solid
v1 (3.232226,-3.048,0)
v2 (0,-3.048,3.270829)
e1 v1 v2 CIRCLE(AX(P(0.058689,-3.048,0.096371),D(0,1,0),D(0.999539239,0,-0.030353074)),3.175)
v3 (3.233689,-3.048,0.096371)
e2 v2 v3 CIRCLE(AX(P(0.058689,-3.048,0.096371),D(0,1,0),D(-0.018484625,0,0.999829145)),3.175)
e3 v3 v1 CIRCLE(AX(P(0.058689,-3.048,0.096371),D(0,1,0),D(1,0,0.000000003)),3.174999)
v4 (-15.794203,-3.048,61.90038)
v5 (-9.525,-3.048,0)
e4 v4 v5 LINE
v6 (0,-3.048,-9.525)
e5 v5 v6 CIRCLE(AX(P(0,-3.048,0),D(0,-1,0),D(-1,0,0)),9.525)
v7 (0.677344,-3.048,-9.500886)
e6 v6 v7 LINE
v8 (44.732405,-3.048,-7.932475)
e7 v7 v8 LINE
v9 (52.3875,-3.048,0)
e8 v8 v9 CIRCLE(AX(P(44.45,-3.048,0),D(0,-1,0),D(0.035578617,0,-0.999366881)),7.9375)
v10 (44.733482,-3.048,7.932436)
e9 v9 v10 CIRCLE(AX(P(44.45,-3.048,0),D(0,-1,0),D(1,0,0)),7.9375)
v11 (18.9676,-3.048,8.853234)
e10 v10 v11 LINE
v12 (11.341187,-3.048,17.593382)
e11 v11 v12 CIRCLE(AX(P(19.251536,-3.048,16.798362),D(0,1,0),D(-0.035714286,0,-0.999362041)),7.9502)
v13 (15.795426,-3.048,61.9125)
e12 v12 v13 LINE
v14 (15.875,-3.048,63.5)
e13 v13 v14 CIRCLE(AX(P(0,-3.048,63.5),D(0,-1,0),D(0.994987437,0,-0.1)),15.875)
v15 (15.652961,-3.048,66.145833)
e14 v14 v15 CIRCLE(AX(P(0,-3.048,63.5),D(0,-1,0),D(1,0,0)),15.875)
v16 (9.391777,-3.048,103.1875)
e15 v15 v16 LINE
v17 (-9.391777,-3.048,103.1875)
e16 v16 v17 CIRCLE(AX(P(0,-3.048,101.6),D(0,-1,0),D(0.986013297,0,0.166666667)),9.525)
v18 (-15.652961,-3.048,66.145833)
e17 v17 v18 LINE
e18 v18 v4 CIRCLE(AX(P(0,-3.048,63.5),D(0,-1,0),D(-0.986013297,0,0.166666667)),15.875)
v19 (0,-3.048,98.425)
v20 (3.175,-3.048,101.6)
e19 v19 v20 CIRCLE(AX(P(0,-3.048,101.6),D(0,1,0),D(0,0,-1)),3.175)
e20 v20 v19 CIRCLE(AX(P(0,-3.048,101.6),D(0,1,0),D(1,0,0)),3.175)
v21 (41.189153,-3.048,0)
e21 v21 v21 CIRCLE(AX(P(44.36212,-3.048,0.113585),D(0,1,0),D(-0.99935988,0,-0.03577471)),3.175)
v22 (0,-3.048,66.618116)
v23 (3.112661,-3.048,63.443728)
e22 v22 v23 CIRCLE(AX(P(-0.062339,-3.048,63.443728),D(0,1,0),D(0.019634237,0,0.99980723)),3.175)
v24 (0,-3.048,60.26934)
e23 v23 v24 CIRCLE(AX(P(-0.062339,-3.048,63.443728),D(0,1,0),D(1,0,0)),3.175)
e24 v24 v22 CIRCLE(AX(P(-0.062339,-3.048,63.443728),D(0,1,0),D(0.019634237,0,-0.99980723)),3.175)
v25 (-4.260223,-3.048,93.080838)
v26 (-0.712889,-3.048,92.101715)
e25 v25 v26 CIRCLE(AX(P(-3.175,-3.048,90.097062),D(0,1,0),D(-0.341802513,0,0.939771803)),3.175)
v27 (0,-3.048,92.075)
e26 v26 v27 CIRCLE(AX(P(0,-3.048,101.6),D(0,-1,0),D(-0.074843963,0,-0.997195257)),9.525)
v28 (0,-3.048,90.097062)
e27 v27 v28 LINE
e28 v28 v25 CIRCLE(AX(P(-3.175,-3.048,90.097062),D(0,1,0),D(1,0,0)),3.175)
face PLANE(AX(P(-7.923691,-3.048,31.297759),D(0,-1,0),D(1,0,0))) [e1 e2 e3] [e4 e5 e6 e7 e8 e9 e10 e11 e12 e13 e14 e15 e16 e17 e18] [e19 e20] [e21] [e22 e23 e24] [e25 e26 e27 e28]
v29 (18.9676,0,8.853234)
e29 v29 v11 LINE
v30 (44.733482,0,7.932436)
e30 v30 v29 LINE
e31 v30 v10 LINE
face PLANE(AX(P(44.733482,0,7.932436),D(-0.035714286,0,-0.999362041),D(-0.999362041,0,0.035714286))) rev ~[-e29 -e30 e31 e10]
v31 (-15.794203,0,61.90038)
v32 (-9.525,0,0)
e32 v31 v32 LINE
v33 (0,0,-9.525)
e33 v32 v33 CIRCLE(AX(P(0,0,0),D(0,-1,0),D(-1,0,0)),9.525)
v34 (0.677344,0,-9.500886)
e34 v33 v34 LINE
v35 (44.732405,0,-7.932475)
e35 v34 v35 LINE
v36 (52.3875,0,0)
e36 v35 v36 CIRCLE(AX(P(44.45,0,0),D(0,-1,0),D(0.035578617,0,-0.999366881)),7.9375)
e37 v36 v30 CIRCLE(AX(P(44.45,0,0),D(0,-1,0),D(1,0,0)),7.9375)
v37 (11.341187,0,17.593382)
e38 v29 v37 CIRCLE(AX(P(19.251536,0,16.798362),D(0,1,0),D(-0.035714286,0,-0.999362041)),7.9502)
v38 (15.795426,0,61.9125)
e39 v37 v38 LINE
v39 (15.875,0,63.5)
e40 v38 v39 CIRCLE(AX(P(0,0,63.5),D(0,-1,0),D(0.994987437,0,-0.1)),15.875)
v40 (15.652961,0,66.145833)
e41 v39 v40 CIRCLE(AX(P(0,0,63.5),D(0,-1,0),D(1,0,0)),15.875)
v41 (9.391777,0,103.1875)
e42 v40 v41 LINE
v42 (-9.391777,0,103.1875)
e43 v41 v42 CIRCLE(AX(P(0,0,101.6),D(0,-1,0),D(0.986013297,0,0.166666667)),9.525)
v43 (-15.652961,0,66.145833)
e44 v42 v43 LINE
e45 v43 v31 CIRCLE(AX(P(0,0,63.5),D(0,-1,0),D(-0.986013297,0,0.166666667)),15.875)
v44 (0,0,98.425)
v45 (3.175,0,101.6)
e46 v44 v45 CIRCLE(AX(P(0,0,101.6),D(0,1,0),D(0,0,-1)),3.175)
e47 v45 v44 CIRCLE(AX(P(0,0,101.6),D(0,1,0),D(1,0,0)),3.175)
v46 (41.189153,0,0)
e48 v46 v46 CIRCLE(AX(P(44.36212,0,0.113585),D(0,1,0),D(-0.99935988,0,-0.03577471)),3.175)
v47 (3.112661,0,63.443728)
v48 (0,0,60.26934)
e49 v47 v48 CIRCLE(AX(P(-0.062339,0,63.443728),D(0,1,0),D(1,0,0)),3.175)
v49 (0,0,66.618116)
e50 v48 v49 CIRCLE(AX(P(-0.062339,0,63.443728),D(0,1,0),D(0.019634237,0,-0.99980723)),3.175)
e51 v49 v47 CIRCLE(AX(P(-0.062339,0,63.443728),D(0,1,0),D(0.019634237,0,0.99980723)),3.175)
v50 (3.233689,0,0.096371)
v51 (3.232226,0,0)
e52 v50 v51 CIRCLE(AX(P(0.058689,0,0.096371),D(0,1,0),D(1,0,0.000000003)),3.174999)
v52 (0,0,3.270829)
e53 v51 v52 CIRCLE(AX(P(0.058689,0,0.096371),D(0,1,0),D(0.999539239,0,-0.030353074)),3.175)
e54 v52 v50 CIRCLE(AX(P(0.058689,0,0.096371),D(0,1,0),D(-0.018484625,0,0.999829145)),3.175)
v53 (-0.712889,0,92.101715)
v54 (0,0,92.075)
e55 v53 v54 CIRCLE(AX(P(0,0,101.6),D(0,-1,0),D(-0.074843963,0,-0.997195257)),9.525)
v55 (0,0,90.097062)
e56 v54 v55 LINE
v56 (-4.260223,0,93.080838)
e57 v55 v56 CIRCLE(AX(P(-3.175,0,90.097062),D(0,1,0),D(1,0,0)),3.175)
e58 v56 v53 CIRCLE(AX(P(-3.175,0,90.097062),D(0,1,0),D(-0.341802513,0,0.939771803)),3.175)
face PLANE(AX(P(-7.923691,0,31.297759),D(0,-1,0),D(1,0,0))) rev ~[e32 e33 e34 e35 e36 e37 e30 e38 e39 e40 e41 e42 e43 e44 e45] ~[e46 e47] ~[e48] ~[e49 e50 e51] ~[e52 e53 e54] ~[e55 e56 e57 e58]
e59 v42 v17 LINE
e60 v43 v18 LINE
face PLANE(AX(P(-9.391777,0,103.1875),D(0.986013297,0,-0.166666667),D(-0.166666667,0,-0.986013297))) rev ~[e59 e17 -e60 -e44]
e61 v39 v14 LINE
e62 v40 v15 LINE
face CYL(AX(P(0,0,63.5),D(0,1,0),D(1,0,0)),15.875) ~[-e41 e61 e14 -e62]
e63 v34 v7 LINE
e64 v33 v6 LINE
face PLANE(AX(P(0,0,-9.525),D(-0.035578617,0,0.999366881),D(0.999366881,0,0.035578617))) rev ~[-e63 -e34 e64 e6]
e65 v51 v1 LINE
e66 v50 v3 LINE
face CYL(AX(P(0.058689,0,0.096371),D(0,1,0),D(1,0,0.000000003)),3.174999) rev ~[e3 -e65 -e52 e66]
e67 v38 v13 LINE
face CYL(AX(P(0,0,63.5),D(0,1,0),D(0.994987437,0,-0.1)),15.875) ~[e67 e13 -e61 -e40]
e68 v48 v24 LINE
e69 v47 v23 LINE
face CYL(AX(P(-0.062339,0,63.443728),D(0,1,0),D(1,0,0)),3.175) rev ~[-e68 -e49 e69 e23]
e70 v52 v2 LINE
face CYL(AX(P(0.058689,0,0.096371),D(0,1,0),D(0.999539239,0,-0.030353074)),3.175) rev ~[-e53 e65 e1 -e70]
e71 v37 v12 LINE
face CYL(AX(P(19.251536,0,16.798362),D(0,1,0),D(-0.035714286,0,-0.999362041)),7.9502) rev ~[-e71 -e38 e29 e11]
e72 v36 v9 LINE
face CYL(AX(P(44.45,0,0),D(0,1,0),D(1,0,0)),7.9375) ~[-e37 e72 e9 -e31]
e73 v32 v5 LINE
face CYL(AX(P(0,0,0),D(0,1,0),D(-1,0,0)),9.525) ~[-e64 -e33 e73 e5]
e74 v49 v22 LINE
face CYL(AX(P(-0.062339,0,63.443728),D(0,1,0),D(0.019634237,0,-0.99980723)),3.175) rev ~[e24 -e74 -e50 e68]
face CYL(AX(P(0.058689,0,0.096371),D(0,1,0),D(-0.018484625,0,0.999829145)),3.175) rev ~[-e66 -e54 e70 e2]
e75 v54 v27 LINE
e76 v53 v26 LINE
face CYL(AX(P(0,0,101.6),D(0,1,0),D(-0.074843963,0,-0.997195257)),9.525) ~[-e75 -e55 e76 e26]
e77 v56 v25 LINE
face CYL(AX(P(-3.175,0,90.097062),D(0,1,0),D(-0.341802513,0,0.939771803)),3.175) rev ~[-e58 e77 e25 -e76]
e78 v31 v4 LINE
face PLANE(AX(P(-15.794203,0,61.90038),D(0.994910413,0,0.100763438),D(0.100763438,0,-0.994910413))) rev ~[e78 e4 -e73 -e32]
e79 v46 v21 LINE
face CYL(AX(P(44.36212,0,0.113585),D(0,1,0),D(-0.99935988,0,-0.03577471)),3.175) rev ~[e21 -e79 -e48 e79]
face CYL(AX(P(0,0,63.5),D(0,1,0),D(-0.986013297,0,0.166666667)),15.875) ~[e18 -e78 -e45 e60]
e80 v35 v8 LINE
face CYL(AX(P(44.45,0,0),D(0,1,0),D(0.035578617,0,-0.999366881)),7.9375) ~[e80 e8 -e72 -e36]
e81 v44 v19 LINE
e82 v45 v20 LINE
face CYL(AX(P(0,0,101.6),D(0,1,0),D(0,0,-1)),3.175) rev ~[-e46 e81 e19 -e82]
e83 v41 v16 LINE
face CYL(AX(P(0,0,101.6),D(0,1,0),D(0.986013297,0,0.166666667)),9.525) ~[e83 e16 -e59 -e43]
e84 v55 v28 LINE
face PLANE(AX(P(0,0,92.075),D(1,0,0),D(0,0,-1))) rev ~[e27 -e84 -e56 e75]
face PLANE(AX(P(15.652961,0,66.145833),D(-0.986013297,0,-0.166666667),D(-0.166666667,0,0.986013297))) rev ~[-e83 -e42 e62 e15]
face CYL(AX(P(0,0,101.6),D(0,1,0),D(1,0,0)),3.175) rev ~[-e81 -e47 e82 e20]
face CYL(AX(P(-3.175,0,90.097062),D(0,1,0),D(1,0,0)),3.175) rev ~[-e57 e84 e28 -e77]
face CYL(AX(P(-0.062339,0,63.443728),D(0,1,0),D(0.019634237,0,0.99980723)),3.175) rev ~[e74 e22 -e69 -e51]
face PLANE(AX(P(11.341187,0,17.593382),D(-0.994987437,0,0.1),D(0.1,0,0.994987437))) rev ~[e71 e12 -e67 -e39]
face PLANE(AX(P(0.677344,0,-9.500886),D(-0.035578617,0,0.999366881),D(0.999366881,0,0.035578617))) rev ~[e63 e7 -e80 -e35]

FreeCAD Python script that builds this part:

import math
import FreeCAD as App
import Part
import Sketcher

V = App.Vector
Q = App.Units.Quantity

doc = App.newDocument("Part")
params = doc.addObject("Spreadsheet::Sheet", "Params")
for row, (alias, value) in enumerate([
    ("sketch1_diameter", "0.25 in"),
    ("sketch1_radius", "0.375 in"),
    ("sketch1_radius2", "0.3125 in"),
    ("sketch1_radius3", "0.313 in"),
    ("sketch1_radius4", "0.625 in"),
    ("pad1_length", "0.12 in"),
], start=1):
    params.set(f"A{row}", alias)
    params.set(f"B{row}", "=" + value)
    params.setAlias(f"B{row}", alias)

body = doc.addObject("PartDesign::Body", "Body")

sketch1 = body.newObject("Sketcher::SketchObject", "Sketch")
sketch1.AttachmentSupport = (doc.getObject("XZ_Plane"), [""])
sketch1.MapMode = "FlatFace"
sketch1.addGeometry([
    Part.LineSegment(V(-15.794203, 61.90038, 0), V(-9.525, 0, 0)),
    Part.ArcOfCircle(Part.Circle(V(0, 0, 0), V(0, 0, 1), 9.525), math.radians(180), math.radians(270)),
    Part.LineSegment(V(0, -9.525, 0), V(0.677344, -9.500886, 0)),
    Part.LineSegment(V(0.677344, -9.500886, 0), V(44.732405, -7.932475, 0)),
    Part.ArcOfCircle(Part.Circle(V(44.45, 0, 0), V(0, 0, 1), 7.9375), math.radians(-87.961065), math.radians(0)),
    Part.ArcOfCircle(Part.Circle(V(44.45, 0, 0), V(0, 0, 1), 7.9375), math.radians(0), math.radians(87.953287)),
    Part.LineSegment(V(44.733482, 7.932436, 0), V(18.9676, 8.853234, 0)),
    Part.ArcOfCircle(Part.Circle(V(19.251536, 16.798362, 0), V(0, 0, 1), 7.9502), math.radians(174.26083), math.radians(267.953287)),
    Part.LineSegment(V(11.341187, 17.593382, 0), V(15.795426, 61.9125, 0)),
    Part.ArcOfCircle(Part.Circle(V(0, 63.5, 0), V(0, 0, 1), 15.875), math.radians(-5.73917), math.radians(0)),
    Part.ArcOfCircle(Part.Circle(V(0, 63.5, 0), V(0, 0, 1), 15.875), math.radians(0), math.radians(9.594068)),
    Part.LineSegment(V(15.652961, 66.145833, 0), V(9.391777, 103.1875, 0)),
    Part.ArcOfCircle(Part.Circle(V(0, 101.6, 0), V(0, 0, 1), 9.525), math.radians(9.594068), math.radians(170.405932)),
    Part.LineSegment(V(-9.391777, 103.1875, 0), V(-15.652961, 66.145833, 0)),
    Part.ArcOfCircle(Part.Circle(V(0, 63.5, 0), V(0, 0, 1), 15.875), math.radians(170.405932), math.radians(185.783134)),
    Part.ArcOfCircle(Part.Circle(V(-0.062339, 63.443728, 0), V(0, 0, 1), 3.175), math.radians(-88.874969), math.radians(0)),
    Part.ArcOfCircle(Part.Circle(V(-0.062339, 63.443728, 0), V(0, 0, 1), 3.175), math.radians(88.874969), math.radians(271.125031)),
    Part.ArcOfCircle(Part.Circle(V(-0.062339, 63.443728, 0), V(0, 0, 1), 3.175), math.radians(0), math.radians(88.874969)),
    Part.ArcOfCircle(Part.Circle(V(0.058689, 0.096371, 0), V(0, 0, 1), 3.175), math.radians(0), math.radians(91.059151)),
    Part.ArcOfCircle(Part.Circle(V(0.058689, 0.096371, 0), V(0, 0, 1), 3.174999), math.radians(-1.73937), math.radians(0)),
    Part.ArcOfCircle(Part.Circle(V(0.058689, 0.096371, 0), V(0, 0, 1), 3.175), math.radians(91.059151), math.radians(358.26063)),
    Part.Circle(V(44.36212, 0.113585, 0), V(0, 0, 1), 3.175),
    Part.LineSegment(V(0, 92.075, 0), V(0, 90.097062, 0)),
    Part.ArcOfCircle(Part.Circle(V(-3.175, 90.097062, 0), V(0, 0, 1), 3.175), math.radians(109.986731), math.radians(360)),
    Part.ArcOfCircle(Part.Circle(V(-3.175, 90.097062, 0), V(0, 0, 1), 3.175), math.radians(39.152508), math.radians(109.986731)),
    Part.ArcOfCircle(Part.Circle(V(0, 101.6, 0), V(0, 0, 1), 9.525), math.radians(-94.292257), math.radians(-90)),
    Part.ArcOfCircle(Part.Circle(V(0, 101.6, 0), V(0, 0, 1), 3.175), math.radians(0), math.radians(270)),
    Part.ArcOfCircle(Part.Circle(V(0, 101.6, 0), V(0, 0, 1), 3.175), math.radians(-90), math.radians(0)),
], False)
sketch1.addConstraint([
    Sketcher.Constraint("Coincident", 0, 2, 1, 1),
    Sketcher.Constraint("Coincident", 1, 2, 2, 1),
    Sketcher.Constraint("Coincident", 2, 2, 3, 1),
    Sketcher.Constraint("Tangent", 3, 2, 4, 1),
    Sketcher.Constraint("Tangent", 4, 2, 5, 1),
    Sketcher.Constraint("Tangent", 5, 2, 6, 1),
    Sketcher.Constraint("Tangent", 6, 2, 7, 2),
    Sketcher.Constraint("Tangent", 7, 1, 8, 1),
    Sketcher.Constraint("Tangent", 8, 2, 9, 1),
    Sketcher.Constraint("Tangent", 9, 2, 10, 1),
    Sketcher.Constraint("Tangent", 10, 2, 11, 1),
    Sketcher.Constraint("Tangent", 11, 2, 12, 1),
    Sketcher.Constraint("Tangent", 12, 2, 13, 1),
    Sketcher.Constraint("Tangent", 13, 2, 14, 1),
    Sketcher.Constraint("Tangent", 14, 2, 0, 1),
    Sketcher.Constraint("Tangent", 15, 1, 16, 2),
    Sketcher.Constraint("Tangent", 16, 1, 17, 2),
    Sketcher.Constraint("Tangent", 17, 1, 15, 2),
    Sketcher.Constraint("Tangent", 18, 1, 19, 2),
    Sketcher.Constraint("Tangent", 19, 1, 20, 2),
    Sketcher.Constraint("Tangent", 20, 1, 18, 2),
    Sketcher.Constraint("Tangent", 22, 2, 23, 2),
    Sketcher.Constraint("Tangent", 23, 1, 24, 2),
    Sketcher.Constraint("Coincident", 24, 1, 25, 1),
    Sketcher.Constraint("Coincident", 25, 2, 22, 1),
    Sketcher.Constraint("Tangent", 26, 1, 27, 2),
    Sketcher.Constraint("Coincident", 27, 1, 26, 2),
    Sketcher.Constraint("Vertical", 22),
    Sketcher.Constraint("Coincident", 1, 3, -1, 1),
    Sketcher.Constraint("Coincident", 14, 3, 9, 3),
    Sketcher.Constraint("Coincident", 25, 3, 12, 3),
    Sketcher.Constraint("Coincident", 26, 3, 12, 3),
    Sketcher.Constraint("Equal", 4, 5),
    Sketcher.Constraint("Equal", 9, 10),
    Sketcher.Constraint("Equal", 1, 12),
    Sketcher.Constraint("Equal", 10, 14),
    Sketcher.Constraint("Equal", 17, 18),
    Sketcher.Constraint("Equal", 20, 21),
    Sketcher.Constraint("Equal", 21, 23),
    Sketcher.Constraint("Equal", 23, 24),
    Sketcher.Constraint("Equal", 12, 25),
    Sketcher.Constraint("Equal", 24, 26),
    Sketcher.Constraint("Symmetric", 11, 2, 12, 2, -2),
    Sketcher.Constraint("PointOnObject", 4, 3, -1),
    Sketcher.Constraint("PointOnObject", 0, 2, -1),
    Sketcher.Constraint("PointOnObject", 1, 2, -2),
    Sketcher.Constraint("PointOnObject", 4, 2, -1),
    Sketcher.Constraint("PointOnObject", 15, 1, -2),
    Sketcher.Constraint("PointOnObject", 16, 1, -2),
    Sketcher.Constraint("PointOnObject", 19, 1, -1),
    Sketcher.Constraint("PointOnObject", 20, 1, -2),
    Sketcher.Constraint("PointOnObject", 22, 2, -2),
    Sketcher.Constraint("PointOnObject", 27, 1, -2),
    Sketcher.Constraint("Parallel", 2, 3),
    Sketcher.Constraint("Horizontal", 14, 3, 9, 2),
    Sketcher.Constraint("Horizontal", 16, 3, 17, 1),
    Sketcher.Constraint("Horizontal", 20, 3, 18, 1),
    Sketcher.Constraint("Horizontal", 27, 3, 26, 1),
    Sketcher.Constraint("Diameter", 21, Q("0.25 in")),
    Sketcher.Constraint("DistanceY", -1, 1, 12, 3, Q("4 in")),
    Sketcher.Constraint("Radius", 1, Q("0.375 in")),
    Sketcher.Constraint("Radius", 4, Q("0.3125 in")),
    Sketcher.Constraint("Radius", 7, Q("0.313 in")),
    Sketcher.Constraint("Radius", 9, Q("0.625 in")),
    Sketcher.Constraint("DistanceY", -1, 1, 9, 3, Q("2.5 in")),
    Sketcher.Constraint("DistanceX", -1, 1, 4, 3, Q("1.75 in")),
    Sketcher.Constraint("DistanceY", -1, 1, 8, 2, Q("2.4375 in")),
    Sketcher.Constraint("DistanceY", -1, 1, 23, 1, Q("3.6645999 in")),
    Sketcher.Constraint("DistanceX", -1, 1, 6, 2, 18.9676),
    Sketcher.Constraint("Distance", 3, 44.082972),
    Sketcher.Constraint("DistanceY", 22, 2, 22, 1, 1.977938),
    Sketcher.Constraint("DistanceX", 15, 3, -1, 1, 0.062339),
    Sketcher.Constraint("DistanceX", -1, 1, 18, 3, 0.058689),
    Sketcher.Constraint("DistanceY", -1, 1, 18, 3, 0.096371),
    Sketcher.Constraint("DistanceX", -1, 1, 21, 3, 44.36212),
    Sketcher.Constraint("DistanceY", -1, 1, 15, 1, 60.26934),
    Sketcher.Constraint("DistanceY", 3, 2, 21, 3, 8.046059),
])
sketch1.setExpression("Constraints[58]", "Params.sketch1_diameter")
sketch1.setExpression("Constraints[60]", "Params.sketch1_radius")
sketch1.setExpression("Constraints[61]", "Params.sketch1_radius2")
sketch1.setExpression("Constraints[62]", "Params.sketch1_radius3")
sketch1.setExpression("Constraints[63]", "Params.sketch1_radius4")
pad1 = body.newObject("PartDesign::Pad", "Pad")
pad1.Profile = sketch1
pad1.setExpression("Length", "Params.pad1_length")

doc.recompute()
